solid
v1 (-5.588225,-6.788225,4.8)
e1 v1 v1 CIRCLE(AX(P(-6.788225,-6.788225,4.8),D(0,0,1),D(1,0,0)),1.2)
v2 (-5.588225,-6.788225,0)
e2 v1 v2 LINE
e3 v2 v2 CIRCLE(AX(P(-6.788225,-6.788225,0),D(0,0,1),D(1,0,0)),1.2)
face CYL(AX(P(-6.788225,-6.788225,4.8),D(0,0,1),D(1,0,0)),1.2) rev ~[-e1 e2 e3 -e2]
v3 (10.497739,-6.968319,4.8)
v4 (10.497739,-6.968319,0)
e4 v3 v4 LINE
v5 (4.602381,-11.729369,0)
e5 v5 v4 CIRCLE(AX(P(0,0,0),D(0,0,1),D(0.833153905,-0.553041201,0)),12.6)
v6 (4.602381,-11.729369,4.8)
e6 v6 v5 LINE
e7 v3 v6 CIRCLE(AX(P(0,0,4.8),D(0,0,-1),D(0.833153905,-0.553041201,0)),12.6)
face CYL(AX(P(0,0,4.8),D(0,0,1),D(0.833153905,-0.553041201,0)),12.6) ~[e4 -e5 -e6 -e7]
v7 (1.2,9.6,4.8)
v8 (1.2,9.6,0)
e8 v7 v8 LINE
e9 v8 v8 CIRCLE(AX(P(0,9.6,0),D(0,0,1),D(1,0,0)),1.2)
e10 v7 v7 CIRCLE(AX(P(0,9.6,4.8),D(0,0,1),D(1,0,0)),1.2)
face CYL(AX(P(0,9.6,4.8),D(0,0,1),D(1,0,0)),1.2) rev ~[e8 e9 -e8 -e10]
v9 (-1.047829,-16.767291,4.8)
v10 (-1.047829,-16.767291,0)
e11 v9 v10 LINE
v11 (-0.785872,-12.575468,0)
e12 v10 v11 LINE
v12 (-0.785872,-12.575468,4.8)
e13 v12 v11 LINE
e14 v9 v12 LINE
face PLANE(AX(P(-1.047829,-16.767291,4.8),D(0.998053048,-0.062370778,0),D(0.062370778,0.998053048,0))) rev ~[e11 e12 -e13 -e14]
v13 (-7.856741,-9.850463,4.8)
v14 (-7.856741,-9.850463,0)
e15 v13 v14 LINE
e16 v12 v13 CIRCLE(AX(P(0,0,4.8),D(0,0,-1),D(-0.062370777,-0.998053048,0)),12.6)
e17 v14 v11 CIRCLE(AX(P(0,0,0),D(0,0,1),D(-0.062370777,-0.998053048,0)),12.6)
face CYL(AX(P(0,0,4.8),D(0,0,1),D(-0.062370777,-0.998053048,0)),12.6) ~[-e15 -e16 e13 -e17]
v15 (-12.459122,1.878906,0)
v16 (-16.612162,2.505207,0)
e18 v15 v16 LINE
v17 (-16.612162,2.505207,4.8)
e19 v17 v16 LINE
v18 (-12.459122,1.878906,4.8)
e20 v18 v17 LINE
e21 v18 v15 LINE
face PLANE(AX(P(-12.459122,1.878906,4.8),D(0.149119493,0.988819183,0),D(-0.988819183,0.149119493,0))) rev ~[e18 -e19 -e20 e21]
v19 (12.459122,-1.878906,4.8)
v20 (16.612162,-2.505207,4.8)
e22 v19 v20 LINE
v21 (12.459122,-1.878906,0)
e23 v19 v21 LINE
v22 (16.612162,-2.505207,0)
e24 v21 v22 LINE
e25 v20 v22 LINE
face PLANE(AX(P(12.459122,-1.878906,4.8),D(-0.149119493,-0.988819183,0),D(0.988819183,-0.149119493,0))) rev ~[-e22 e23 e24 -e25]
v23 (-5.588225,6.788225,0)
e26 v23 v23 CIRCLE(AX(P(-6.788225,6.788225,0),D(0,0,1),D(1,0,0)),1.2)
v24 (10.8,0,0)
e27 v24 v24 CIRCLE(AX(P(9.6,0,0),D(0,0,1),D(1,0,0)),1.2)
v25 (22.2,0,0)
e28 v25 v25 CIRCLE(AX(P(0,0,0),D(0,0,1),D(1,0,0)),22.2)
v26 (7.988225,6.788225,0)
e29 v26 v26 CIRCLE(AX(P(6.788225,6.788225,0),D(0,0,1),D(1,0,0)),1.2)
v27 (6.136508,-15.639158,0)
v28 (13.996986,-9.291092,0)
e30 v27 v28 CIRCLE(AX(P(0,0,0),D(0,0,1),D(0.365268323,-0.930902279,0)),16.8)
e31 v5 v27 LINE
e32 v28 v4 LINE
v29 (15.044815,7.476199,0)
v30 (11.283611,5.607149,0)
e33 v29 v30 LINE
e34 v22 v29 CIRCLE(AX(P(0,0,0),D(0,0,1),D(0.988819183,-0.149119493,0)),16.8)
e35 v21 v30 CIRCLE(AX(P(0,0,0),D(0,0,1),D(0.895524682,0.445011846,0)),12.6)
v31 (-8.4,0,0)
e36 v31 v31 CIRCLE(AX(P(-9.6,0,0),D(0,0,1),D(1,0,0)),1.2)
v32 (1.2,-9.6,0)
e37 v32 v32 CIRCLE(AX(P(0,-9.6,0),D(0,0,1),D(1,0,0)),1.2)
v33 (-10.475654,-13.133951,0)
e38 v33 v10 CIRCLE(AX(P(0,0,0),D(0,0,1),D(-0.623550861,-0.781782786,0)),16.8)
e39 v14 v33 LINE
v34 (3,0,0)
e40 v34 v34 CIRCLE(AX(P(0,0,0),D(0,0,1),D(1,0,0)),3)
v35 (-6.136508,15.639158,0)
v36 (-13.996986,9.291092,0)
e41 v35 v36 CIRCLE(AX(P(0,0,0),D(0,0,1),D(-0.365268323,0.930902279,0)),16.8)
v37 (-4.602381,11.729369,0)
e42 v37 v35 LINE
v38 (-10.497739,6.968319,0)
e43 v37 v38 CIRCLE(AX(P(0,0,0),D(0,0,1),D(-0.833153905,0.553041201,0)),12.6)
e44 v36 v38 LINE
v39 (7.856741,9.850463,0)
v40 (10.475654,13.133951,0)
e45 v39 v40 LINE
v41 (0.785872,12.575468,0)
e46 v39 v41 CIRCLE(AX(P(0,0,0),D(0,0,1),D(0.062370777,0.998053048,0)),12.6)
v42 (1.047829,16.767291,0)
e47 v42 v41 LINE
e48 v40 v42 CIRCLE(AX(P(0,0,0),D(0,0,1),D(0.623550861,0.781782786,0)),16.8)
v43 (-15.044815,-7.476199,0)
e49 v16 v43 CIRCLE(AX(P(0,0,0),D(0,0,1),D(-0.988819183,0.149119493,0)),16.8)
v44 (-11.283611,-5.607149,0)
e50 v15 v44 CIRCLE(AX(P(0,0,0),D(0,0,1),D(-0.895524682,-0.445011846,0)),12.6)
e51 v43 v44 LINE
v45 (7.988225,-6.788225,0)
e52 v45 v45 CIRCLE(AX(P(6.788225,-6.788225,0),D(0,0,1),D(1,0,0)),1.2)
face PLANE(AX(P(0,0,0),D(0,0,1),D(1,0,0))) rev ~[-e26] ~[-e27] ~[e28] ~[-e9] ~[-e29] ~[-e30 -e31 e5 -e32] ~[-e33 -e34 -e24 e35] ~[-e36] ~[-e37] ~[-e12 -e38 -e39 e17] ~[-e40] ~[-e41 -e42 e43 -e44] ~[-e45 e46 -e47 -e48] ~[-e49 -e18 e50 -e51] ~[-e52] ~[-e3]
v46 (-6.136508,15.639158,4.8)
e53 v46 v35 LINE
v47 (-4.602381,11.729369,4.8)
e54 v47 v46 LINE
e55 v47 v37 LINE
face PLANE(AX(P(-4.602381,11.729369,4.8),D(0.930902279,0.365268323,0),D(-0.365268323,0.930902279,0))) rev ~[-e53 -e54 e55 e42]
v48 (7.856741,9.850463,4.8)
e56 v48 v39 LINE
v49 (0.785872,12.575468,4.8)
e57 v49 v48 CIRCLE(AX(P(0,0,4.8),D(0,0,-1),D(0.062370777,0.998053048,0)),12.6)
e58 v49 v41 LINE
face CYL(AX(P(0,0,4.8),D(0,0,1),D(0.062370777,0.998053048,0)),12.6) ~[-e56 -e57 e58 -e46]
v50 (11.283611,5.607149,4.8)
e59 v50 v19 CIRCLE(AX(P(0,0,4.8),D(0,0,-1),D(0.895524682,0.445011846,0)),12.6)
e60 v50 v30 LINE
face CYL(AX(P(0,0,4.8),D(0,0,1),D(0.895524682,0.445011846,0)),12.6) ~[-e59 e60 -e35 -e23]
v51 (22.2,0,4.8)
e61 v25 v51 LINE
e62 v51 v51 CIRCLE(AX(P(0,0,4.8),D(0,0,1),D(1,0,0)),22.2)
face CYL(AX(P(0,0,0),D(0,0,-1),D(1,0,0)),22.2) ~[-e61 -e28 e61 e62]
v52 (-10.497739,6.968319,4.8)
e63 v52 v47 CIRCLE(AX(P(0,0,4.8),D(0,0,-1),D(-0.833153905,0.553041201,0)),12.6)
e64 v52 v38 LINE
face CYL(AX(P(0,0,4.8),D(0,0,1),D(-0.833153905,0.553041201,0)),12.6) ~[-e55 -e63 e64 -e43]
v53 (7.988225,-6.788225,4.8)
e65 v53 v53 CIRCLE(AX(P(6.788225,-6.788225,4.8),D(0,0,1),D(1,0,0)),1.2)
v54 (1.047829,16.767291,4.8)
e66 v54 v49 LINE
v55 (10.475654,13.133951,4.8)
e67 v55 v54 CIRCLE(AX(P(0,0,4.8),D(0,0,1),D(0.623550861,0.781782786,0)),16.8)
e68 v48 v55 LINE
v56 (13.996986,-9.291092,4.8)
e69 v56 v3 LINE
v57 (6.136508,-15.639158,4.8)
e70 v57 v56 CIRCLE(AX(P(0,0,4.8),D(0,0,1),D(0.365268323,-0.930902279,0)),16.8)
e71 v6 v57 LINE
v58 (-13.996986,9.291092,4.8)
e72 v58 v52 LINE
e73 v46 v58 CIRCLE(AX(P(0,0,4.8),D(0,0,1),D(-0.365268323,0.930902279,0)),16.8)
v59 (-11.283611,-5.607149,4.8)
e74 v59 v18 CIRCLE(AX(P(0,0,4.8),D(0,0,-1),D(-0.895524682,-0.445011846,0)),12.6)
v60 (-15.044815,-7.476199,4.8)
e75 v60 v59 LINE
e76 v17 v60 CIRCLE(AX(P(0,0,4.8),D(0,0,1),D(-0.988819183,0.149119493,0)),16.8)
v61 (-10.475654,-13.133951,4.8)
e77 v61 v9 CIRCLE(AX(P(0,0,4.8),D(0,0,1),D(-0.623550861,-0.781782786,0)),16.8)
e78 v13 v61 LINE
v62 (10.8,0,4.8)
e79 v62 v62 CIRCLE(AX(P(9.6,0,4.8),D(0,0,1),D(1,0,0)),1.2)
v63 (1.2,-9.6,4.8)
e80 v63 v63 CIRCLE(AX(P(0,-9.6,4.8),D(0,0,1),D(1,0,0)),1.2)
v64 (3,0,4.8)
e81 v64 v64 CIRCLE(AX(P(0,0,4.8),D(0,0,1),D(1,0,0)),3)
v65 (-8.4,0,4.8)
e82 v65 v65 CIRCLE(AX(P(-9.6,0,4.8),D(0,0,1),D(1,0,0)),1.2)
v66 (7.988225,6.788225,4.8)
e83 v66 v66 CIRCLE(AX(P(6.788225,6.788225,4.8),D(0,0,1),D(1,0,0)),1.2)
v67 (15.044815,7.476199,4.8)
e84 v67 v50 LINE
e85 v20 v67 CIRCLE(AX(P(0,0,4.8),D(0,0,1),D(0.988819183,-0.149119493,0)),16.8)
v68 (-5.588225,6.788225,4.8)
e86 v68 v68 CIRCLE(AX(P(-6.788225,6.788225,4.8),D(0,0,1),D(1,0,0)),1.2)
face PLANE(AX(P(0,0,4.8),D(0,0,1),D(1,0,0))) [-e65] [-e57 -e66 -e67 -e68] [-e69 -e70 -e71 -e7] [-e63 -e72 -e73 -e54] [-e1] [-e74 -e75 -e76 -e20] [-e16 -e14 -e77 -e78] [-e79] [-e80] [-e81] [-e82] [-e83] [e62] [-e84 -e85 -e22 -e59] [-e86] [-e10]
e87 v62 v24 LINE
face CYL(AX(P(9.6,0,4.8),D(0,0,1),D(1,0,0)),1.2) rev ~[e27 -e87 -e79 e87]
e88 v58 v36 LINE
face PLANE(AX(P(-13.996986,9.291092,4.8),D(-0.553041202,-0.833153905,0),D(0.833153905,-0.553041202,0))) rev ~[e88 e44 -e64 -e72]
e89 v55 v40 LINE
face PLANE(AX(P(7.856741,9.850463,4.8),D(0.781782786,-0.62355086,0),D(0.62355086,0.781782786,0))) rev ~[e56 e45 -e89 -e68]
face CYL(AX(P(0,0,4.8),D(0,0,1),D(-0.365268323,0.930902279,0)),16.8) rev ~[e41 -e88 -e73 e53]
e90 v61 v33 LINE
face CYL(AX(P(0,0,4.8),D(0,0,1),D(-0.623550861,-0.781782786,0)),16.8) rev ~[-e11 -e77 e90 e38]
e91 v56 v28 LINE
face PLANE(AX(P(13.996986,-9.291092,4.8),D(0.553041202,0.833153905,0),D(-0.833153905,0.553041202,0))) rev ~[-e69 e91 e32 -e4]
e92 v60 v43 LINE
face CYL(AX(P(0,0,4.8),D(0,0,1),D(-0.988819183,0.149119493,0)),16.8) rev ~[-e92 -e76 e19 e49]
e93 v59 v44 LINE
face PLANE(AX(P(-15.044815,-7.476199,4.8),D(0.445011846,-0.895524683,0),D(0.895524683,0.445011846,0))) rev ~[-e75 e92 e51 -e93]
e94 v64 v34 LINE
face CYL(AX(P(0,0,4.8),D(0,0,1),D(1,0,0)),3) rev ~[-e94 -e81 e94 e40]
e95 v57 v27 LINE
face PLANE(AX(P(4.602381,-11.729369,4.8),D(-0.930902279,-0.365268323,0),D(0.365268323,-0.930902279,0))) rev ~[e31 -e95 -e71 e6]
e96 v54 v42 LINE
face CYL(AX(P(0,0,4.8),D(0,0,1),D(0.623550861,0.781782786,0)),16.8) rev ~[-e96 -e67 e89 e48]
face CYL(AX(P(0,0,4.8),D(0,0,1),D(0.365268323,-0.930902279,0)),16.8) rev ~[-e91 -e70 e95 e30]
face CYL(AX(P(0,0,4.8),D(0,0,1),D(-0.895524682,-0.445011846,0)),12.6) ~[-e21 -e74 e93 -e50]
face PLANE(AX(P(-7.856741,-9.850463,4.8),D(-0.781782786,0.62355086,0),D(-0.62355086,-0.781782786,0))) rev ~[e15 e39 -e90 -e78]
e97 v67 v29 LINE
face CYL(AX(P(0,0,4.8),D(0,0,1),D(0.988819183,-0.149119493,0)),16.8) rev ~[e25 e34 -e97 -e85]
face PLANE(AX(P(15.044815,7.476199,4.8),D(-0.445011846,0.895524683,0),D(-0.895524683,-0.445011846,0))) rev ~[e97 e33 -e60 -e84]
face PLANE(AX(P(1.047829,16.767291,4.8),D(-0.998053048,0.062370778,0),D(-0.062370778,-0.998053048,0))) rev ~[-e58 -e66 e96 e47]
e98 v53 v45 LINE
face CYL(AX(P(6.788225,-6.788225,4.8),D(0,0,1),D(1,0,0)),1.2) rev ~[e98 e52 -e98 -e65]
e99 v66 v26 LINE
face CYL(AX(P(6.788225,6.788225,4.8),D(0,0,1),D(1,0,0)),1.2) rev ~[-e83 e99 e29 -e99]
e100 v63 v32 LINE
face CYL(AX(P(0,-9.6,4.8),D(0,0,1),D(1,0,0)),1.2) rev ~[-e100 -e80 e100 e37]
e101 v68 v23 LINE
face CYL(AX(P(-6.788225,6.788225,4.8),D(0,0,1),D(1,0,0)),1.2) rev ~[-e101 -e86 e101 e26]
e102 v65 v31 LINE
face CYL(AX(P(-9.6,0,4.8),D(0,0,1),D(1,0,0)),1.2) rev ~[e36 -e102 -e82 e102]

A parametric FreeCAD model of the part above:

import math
import FreeCAD as App
import Part
import Sketcher
from FreeCAD import Vector
Q = App.Units.Quantity

doc = App.newDocument("Part")
body = doc.addObject("PartDesign::Body", "Body")

# Sketch on XY plane
sketch1 = doc.addObject("Sketcher::SketchObject", "Sketch")
body.addObject(sketch1)
sketch1.AttachmentSupport = (doc.XY_Plane, [""])
sketch1.MapMode = "FlatFace"
sketch1.addGeometry(Part.Circle(Vector(0, 0, 0), Vector(0, 0, 1), 22.2), False)
sketch1.addConstraint([
    Sketcher.Constraint("Coincident", 0, 3, -1, 1),
    Sketcher.Constraint("Diameter", 0, Q("44.4 mm")),
])
pad1 = doc.addObject("PartDesign::Pad", "Pad")
body.addObject(pad1)
pad1.Profile = sketch1
pad1.Length = 4.8

# Sketch on XY plane
sketch2 = doc.addObject("Sketcher::SketchObject", "Sketch001")
body.addObject(sketch2)
sketch2.AttachmentSupport = (doc.XY_Plane, [""])
sketch2.MapMode = "FlatFace"
sketch2.AttachmentOffset = App.Placement(Vector(0, 0, 4.8), App.Rotation())
sketch2.addGeometry([
    Part.Circle(Vector(0, 0, 0), Vector(0, 0, 1), 3),  # 0
    Part.Circle(Vector(9.6, 0, 0), Vector(0, 0, 1), 1.2),  # 1
    Part.Circle(Vector(6.788225, -6.788225, 0), Vector(0, 0, 1), 1.2),  # 2
    Part.Circle(Vector(0, -9.6, 0), Vector(0, 0, 1), 1.2),  # 3
    Part.Circle(Vector(-6.788225, -6.788225, 0), Vector(0, 0, 1), 1.2),  # 4
    Part.Circle(Vector(-9.6, 0, 0), Vector(0, 0, 1), 1.2),  # 5
    Part.Circle(Vector(-6.788225, 6.788225, 0), Vector(0, 0, 1), 1.2),  # 6
    Part.Circle(Vector(0, 9.6, 0), Vector(0, 0, 1), 1.2),  # 7
    Part.Circle(Vector(6.788225, 6.788225, 0), Vector(0, 0, 1), 1.2),  # 8
    Part.LineSegment(Vector(-13.996986, 9.291092, 0), Vector(-10.497739, 6.968319, 0)),  # 9
    Part.ArcOfCircle(Part.Circle(Vector(0, 0, 0), Vector(0, 0, 1), 12.6), math.radians(111.424097), math.radians(146.424097)),  # 10
    Part.LineSegment(Vector(-4.602381, 11.729369, 0), Vector(-6.136508, 15.639158, 0)),  # 11
    Part.ArcOfCircle(Part.Circle(Vector(0, 0, 0), Vector(0, 0, 1), 16.8), math.radians(111.424097), math.radians(146.424097)),  # 12
    Part.LineSegment(Vector(1.047829, 16.767291, 0), Vector(0.785872, 12.575468, 0)),  # 13
    Part.ArcOfCircle(Part.Circle(Vector(0, 0, 0), Vector(0, 0, 1), 12.6), math.radians(51.424097), math.radians(86.424097)),  # 14
    Part.LineSegment(Vector(7.856741, 9.850463, 0), Vector(10.475654, 13.133951, 0)),  # 15
    Part.ArcOfCircle(Part.Circle(Vector(0, 0, 0), Vector(0, 0, 1), 16.8), math.radians(51.424097), math.radians(86.424097)),  # 16
    Part.LineSegment(Vector(15.044815, 7.476199, 0), Vector(11.283611, 5.607149, 0)),  # 17
    Part.ArcOfCircle(Part.Circle(Vector(0, 0, 0), Vector(0, 0, 1), 12.6), math.radians(-8.575903), math.radians(26.424097)),  # 18
    Part.LineSegment(Vector(12.459122, -1.878906, 0), Vector(16.612162, -2.505207, 0)),  # 19
    Part.ArcOfCircle(Part.Circle(Vector(0, 0, 0), Vector(0, 0, 1), 16.8), math.radians(-8.575903), math.radians(26.424097)),  # 20
    Part.LineSegment(Vector(13.996986, -9.291092, 0), Vector(10.497739, -6.968319, 0)),  # 21
    Part.ArcOfCircle(Part.Circle(Vector(0, 0, 0), Vector(0, 0, 1), 12.6), math.radians(-68.575903), math.radians(-33.575903)),  # 22
    Part.LineSegment(Vector(4.602381, -11.729369, 0), Vector(6.136508, -15.639158, 0)),  # 23
    Part.ArcOfCircle(Part.Circle(Vector(0, 0, 0), Vector(0, 0, 1), 16.8), math.radians(-68.575903), math.radians(-33.575903)),  # 24
    Part.LineSegment(Vector(-1.047829, -16.767291, 0), Vector(-0.785872, -12.575468, 0)),  # 25
    Part.ArcOfCircle(Part.Circle(Vector(0, 0, 0), Vector(0, 0, 1), 12.6), math.radians(-128.575903), math.radians(-93.575903)),  # 26
    Part.LineSegment(Vector(-7.856741, -9.850463, 0), Vector(-10.475654, -13.133951, 0)),  # 27
    Part.ArcOfCircle(Part.Circle(Vector(0, 0, 0), Vector(0, 0, 1), 16.8), math.radians(-128.575903), math.radians(-93.575903)),  # 28
    Part.LineSegment(Vector(-15.044815, -7.476199, 0), Vector(-11.283611, -5.607149, 0)),  # 29
    Part.ArcOfCircle(Part.Circle(Vector(0, 0, 0), Vector(0, 0, 1), 12.6), math.radians(171.424097), math.radians(206.424097)),  # 30
    Part.LineSegment(Vector(-12.459122, 1.878906, 0), Vector(-16.612162, 2.505207, 0)),  # 31
    Part.ArcOfCircle(Part.Circle(Vector(0, 0, 0), Vector(0, 0, 1), 16.8), math.radians(171.424097), math.radians(206.424097)),  # 32
], False)
sketch2.addConstraint([
    Sketcher.Constraint("Coincident", 9, 2, 10, 2),
    Sketcher.Constraint("Coincident", 10, 1, 11, 1),
    Sketcher.Constraint("Coincident", 11, 2, 12, 1),
    Sketcher.Constraint("Coincident", 12, 2, 9, 1),
    Sketcher.Constraint("Coincident", 13, 2, 14, 2),
    Sketcher.Constraint("Coincident", 14, 1, 15, 1),
    Sketcher.Constraint("Coincident", 15, 2, 16, 1),
    Sketcher.Constraint("Coincident", 16, 2, 13, 1),
    Sketcher.Constraint("Coincident", 17, 2, 18, 2),
    Sketcher.Constraint("Coincident", 18, 1, 19, 1),
    Sketcher.Constraint("Coincident", 19, 2, 20, 1),
    Sketcher.Constraint("Coincident", 20, 2, 17, 1),
    Sketcher.Constraint("Coincident", 21, 2, 22, 2),
    Sketcher.Constraint("Coincident", 22, 1, 23, 1),
    Sketcher.Constraint("Coincident", 23, 2, 24, 1),
    Sketcher.Constraint("Coincident", 24, 2, 21, 1),
    Sketcher.Constraint("Coincident", 25, 2, 26, 2),
    Sketcher.Constraint("Coincident", 26, 1, 27, 1),
    Sketcher.Constraint("Coincident", 27, 2, 28, 1),
    Sketcher.Constraint("Coincident", 28, 2, 25, 1),
    Sketcher.Constraint("Coincident", 29, 2, 30, 2),
    Sketcher.Constraint("Coincident", 30, 1, 31, 1),
    Sketcher.Constraint("Coincident", 31, 2, 32, 1),
    Sketcher.Constraint("Coincident", 32, 2, 29, 1),
    Sketcher.Constraint("Coincident", 0, 3, -1, 1),
    Sketcher.Constraint("Coincident", 10, 3, -1, 1),
    Sketcher.Constraint("Coincident", 12, 3, -1, 1),
    Sketcher.Constraint("Coincident", 14, 3, -1, 1),
    Sketcher.Constraint("Coincident", 16, 3, -1, 1),
    Sketcher.Constraint("Coincident", 18, 3, -1, 1),
    Sketcher.Constraint("Coincident", 20, 3, -1, 1),
    Sketcher.Constraint("Coincident", 22, 3, -1, 1),
    Sketcher.Constraint("Coincident", 24, 3, -1, 1),
    Sketcher.Constraint("Coincident", 26, 3, -1, 1),
    Sketcher.Constraint("Coincident", 28, 3, -1, 1),
    Sketcher.Constraint("Coincident", 30, 3, -1, 1),
    Sketcher.Constraint("Coincident", 32, 3, -1, 1),
    Sketcher.Constraint("Equal", 1, 2),
    Sketcher.Constraint("Equal", 2, 3),
    Sketcher.Constraint("Equal", 3, 4),
    Sketcher.Constraint("Equal", 4, 5),
    Sketcher.Constraint("Equal", 5, 6),
    Sketcher.Constraint("Equal", 6, 7),
    Sketcher.Constraint("Equal", 7, 8),
    Sketcher.Constraint("Equal", 10, 14),
    Sketcher.Constraint("Equal", 12, 16),
    Sketcher.Constraint("Equal", 14, 18),
    Sketcher.Constraint("Equal", 16, 20),
    Sketcher.Constraint("Equal", 18, 22),
    Sketcher.Constraint("Equal", 20, 24),
    Sketcher.Constraint("Equal", 22, 26),
    Sketcher.Constraint("Equal", 24, 28),
    Sketcher.Constraint("Equal", 26, 30),
    Sketcher.Constraint("Equal", 28, 32),
    Sketcher.Constraint("Symmetric", 1, 3, 5, 3, -1, 1),
    Sketcher.Constraint("Symmetric", 2, 3, 6, 3, -1, 1),
    Sketcher.Constraint("Symmetric", 3, 3, 7, 3, -1, 1),
    Sketcher.Constraint("Symmetric", 4, 3, 8, 3, -1, 1),
    Sketcher.Constraint("Symmetric", 2, 3, 4, 3, -2),
    Sketcher.Constraint("PointOnObject", 1, 3, -1),
    Sketcher.Constraint("PointOnObject", 3, 3, -2),
    Sketcher.Constraint("Parallel", 9, 21),
    Sketcher.Constraint("Parallel", 11, 23),
    Sketcher.Constraint("Parallel", 13, 25),
    Sketcher.Constraint("Parallel", 15, 27),
    Sketcher.Constraint("Parallel", 17, 29),
    Sketcher.Constraint("Parallel", 19, 31),
    Sketcher.Constraint("Diameter", 0, Q("6 mm")),
    Sketcher.Constraint("Diameter", 1, Q("2.4 mm")),
    Sketcher.Constraint("Radius", 10, Q("12.6 mm")),
    Sketcher.Constraint("Radius", 12, Q("16.8 mm")),
    Sketcher.Constraint("DistanceX", -1, 1, 1, 3, Q("9.6 mm")),
    Sketcher.Constraint("DistanceY", 3, 3, -1, 1, Q("9.6 mm")),
    Sketcher.Constraint("DistanceY", -1, 1, 20, 2, Q("7.476199 mm")),
    Sketcher.Constraint("DistanceY", 32, 2, -1, 1, Q("7.476199 mm")),
    Sketcher.Constraint("DistanceY", 10, 1, 13, 2, Q("0.8461 mm")),
    Sketcher.Constraint("DistanceY", 17, 2, 15, 2, Q("7.526802 mm")),
    Sketcher.Constraint("DistanceY", 19, 2, 18, 1, Q("0.626302 mm")),
    Sketcher.Constraint("DistanceY", 25, 2, 22, 1, Q("0.8461 mm")),
    Sketcher.Constraint("DistanceY", 27, 2, 29, 2, Q("7.526802 mm")),
    Sketcher.Constraint("DistanceX", 9, 2, -1, 1, Q("10.497739 mm")),
    Sketcher.Constraint("DistanceX", 10, 1, -1, 1, Q("4.602381 mm")),
    Sketcher.Constraint("DistanceY", -1, 1, 11, 2, Q("15.639158 mm")),
    Sketcher.Constraint("DistanceX", -1, 1, 14, 1, Q("7.856741 mm")),
    Sketcher.Constraint("DistanceY", -1, 1, 15, 2, Q("13.133951 mm")),
    Sketcher.Constraint("DistanceX", -1, 1, 16, 2, Q("1.047829 mm")),
    Sketcher.Constraint("DistanceX", -1, 1, 18, 1, Q("12.459122 mm")),
    Sketcher.Constraint("DistanceX", -1, 1, 21, 2, Q("10.497739 mm")),
    Sketcher.Constraint("DistanceX", -1, 1, 22, 1, Q("4.602381 mm")),
    Sketcher.Constraint("DistanceX", 30, 1, -1, 1, Q("12.459122 mm")),
    Sketcher.Constraint("DistanceX", 4, 3, 2, 3, Q("13.57645 mm")),
    Sketcher.Constraint("DistanceY", 4, 3, 6, 3, Q("13.57645 mm")),
    Sketcher.Constraint("DistanceX", 12, 2, 6, 3, Q("7.208761 mm")),
])
pocket1 = doc.addObject("PartDesign::Pocket", "Pocket")
body.addObject(pocket1)
pocket1.Profile = sketch2
pocket1.Type = "ThroughAll"

doc.recompute()
